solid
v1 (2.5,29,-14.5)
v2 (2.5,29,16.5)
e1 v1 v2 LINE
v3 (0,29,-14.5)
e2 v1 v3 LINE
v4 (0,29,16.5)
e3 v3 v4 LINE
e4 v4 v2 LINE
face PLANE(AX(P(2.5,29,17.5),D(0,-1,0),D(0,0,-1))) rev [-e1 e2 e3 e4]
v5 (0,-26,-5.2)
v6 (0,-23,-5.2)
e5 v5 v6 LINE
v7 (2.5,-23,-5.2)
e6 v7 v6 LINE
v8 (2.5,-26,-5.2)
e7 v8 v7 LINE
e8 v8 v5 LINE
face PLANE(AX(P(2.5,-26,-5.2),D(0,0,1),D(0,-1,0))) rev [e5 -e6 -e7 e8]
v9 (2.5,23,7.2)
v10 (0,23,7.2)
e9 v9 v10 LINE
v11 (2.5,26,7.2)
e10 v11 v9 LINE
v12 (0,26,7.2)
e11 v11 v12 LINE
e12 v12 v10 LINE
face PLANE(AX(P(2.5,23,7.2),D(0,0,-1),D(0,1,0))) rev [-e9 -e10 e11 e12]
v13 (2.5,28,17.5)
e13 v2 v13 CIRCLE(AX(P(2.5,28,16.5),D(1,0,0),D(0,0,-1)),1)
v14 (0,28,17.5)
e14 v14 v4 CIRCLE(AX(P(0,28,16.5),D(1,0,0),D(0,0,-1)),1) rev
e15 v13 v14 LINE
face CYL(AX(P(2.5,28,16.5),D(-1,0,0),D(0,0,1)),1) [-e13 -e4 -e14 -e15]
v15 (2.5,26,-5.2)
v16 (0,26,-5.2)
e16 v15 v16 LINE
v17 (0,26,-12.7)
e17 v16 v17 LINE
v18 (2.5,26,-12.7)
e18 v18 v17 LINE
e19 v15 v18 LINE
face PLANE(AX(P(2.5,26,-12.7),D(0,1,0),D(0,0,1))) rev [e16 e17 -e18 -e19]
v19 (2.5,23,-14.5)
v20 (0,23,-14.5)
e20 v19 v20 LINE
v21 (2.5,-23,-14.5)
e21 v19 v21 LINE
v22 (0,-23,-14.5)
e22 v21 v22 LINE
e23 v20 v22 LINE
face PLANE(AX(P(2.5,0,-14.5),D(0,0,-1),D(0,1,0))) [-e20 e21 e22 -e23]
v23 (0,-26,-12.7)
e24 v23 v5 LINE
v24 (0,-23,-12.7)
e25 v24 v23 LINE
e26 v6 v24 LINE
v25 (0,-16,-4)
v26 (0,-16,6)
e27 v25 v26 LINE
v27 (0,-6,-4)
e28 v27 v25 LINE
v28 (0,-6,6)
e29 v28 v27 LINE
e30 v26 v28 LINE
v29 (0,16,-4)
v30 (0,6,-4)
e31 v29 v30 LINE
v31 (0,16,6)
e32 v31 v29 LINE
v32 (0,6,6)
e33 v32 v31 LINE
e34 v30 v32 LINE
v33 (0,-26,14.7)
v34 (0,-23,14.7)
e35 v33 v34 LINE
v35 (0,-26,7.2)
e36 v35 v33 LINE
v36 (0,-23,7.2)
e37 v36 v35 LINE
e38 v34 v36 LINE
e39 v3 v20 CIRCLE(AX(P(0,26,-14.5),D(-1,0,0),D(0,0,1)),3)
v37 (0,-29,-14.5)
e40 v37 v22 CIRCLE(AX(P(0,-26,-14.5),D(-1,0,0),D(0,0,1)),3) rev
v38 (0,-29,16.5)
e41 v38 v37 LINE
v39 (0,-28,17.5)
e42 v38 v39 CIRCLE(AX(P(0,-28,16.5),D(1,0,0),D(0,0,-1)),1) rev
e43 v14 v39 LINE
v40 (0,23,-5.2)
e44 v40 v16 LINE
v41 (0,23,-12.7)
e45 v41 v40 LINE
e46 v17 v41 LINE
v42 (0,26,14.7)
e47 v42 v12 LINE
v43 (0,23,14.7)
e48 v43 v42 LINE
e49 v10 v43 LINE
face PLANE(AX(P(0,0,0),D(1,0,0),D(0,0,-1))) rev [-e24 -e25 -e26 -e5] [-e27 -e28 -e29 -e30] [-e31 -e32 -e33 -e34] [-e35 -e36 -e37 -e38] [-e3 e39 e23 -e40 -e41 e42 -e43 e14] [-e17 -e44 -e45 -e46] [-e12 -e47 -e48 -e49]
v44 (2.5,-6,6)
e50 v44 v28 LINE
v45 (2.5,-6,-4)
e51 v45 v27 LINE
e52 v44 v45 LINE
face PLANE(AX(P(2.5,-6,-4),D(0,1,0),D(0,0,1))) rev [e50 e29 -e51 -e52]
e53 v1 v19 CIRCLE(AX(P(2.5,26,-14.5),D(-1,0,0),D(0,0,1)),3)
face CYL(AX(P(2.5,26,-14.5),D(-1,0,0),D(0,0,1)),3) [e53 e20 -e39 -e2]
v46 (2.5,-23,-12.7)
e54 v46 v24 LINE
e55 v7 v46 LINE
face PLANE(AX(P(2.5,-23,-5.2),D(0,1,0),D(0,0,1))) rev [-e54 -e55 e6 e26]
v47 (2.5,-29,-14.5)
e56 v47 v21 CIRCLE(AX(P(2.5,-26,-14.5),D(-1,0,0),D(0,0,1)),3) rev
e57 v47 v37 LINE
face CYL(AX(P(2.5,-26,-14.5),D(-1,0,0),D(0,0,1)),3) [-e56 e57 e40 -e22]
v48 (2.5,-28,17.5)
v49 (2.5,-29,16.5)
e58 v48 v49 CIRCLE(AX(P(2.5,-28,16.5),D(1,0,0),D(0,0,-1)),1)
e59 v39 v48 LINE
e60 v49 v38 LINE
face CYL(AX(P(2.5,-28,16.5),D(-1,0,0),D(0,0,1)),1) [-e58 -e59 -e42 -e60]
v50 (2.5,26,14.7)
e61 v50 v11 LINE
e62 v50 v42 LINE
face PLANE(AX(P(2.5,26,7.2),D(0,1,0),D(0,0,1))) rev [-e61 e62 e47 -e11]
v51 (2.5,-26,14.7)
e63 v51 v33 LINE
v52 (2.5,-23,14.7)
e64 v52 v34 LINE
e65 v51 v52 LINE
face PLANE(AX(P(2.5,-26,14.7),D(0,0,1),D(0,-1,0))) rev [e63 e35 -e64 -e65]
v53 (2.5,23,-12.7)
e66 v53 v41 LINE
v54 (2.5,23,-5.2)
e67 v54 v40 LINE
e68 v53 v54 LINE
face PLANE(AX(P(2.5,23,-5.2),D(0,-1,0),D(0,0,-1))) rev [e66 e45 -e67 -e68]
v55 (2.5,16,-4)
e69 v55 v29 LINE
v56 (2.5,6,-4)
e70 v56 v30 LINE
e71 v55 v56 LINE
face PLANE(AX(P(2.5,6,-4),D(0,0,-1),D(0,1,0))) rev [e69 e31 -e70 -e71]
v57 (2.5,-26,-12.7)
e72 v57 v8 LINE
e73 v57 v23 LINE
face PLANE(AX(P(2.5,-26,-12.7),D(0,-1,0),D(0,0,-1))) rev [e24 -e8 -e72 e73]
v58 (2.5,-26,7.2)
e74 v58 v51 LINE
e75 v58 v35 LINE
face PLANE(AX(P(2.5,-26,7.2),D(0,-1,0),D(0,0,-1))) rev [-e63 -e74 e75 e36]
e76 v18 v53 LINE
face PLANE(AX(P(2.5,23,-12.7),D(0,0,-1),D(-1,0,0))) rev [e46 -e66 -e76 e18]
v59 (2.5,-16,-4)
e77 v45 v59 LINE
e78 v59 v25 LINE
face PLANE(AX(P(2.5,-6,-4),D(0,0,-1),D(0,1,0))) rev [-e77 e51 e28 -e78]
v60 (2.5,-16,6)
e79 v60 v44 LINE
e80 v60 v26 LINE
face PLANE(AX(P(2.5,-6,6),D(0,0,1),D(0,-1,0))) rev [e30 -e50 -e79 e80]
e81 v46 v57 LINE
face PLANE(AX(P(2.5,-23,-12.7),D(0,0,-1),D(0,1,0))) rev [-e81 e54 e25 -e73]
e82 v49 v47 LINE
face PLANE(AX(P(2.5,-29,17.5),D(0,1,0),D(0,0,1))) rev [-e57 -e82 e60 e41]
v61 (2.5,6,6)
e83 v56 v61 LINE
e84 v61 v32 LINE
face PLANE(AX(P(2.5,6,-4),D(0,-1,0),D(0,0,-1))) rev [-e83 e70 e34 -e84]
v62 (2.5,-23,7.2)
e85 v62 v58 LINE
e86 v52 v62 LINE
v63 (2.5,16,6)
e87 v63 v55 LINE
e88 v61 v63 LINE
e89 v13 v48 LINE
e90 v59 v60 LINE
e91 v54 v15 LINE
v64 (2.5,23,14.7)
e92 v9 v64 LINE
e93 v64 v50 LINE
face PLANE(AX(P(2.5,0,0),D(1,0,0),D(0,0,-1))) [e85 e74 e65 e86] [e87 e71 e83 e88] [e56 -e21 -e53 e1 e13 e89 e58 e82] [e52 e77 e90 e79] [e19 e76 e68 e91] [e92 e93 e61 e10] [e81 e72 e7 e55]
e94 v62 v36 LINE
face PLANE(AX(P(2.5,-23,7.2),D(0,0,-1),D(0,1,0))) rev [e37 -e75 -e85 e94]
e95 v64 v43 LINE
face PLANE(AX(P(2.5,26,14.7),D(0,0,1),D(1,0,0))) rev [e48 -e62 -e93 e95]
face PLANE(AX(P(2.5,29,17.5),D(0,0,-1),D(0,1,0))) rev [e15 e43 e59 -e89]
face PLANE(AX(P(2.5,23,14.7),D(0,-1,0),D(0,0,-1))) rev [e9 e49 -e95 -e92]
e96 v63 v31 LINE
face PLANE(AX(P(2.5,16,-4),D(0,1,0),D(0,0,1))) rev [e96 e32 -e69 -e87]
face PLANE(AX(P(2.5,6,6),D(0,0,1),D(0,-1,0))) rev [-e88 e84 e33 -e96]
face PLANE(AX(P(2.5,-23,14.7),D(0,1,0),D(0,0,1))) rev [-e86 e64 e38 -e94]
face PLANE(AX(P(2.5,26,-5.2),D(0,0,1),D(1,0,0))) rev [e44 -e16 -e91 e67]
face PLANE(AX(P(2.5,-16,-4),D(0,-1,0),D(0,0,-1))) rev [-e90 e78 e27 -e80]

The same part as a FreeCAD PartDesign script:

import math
import FreeCAD as App
import Part
import Sketcher
from FreeCAD import Vector


def edges_at(feature, points):
    """Names of the edges that pass closest to the given points."""
    edges = feature.Shape.Edges
    near = lambda p: min(range(len(edges)), key=lambda i: edges[i].distToShape(Part.Vertex(*p))[0])
    return sorted({f"Edge{near(p) + 1}" for p in points})

doc = App.newDocument("Part")
body = doc.addObject("PartDesign::Body", "Body")

sketch1 = body.newObject("Sketcher::SketchObject", "Sketch")
sketch1.AttachmentSupport = (doc.getObject("YZ_Plane"), [""])
sketch1.MapMode = "FlatFace"
sketch1.addGeometry(Part.LineSegment(Vector(29, 18, 0), Vector(-29, 18, 0)), False)
sketch1.addGeometry(Part.LineSegment(Vector(-29, 18, 0), Vector(-29, -18, 0)), False)
sketch1.addGeometry(Part.LineSegment(Vector(-29, -18, 0), Vector(29, -18, 0)), False)
sketch1.addGeometry(Part.LineSegment(Vector(29, -18, 0), Vector(29, 18, 0)), False)
sketch1.addConstraint(Sketcher.Constraint("Coincident", 0, 2, 1, 1))
sketch1.addConstraint(Sketcher.Constraint("Coincident", 1, 2, 2, 1))
sketch1.addConstraint(Sketcher.Constraint("Coincident", 2, 2, 3, 1))
sketch1.addConstraint(Sketcher.Constraint("Coincident", 3, 2, 0, 1))
sketch1.addConstraint(Sketcher.Constraint("Horizontal", 0))
sketch1.addConstraint(Sketcher.Constraint("Vertical", 1))
sketch1.addConstraint(Sketcher.Constraint("Horizontal", 2))
sketch1.addConstraint(Sketcher.Constraint("Vertical", 3))
sketch1.addConstraint(Sketcher.Constraint("Symmetric", 0, 2, 2, 2, -1, 1))
sketch1.addConstraint(Sketcher.Constraint("DistanceX", 0, 2, 0, 1, 58.0))
sketch1.addConstraint(Sketcher.Constraint("DistanceY", 1, 2, 1, 1, 35.0))
pad1 = body.newObject("PartDesign::Pad", "Pad")
pad1.Profile = sketch1
pad1.Length = 2.5

sketch2 = body.newObject("Sketcher::SketchObject", "Sketch001")
sketch2.AttachmentSupport = (doc.getObject("YZ_Plane"), [""])
sketch2.MapMode = "FlatFace"
sketch2.addGeometry(Part.LineSegment(Vector(26, -12.7, 0), Vector(23, -12.7, 0)), False)
sketch2.addGeometry(Part.LineSegment(Vector(23, -12.7, 0), Vector(23, -5.2, 0)), False)
sketch2.addGeometry(Part.LineSegment(Vector(23, -5.2, 0), Vector(26, -5.2, 0)), False)
sketch2.addGeometry(Part.LineSegment(Vector(26, -5.2, 0), Vector(26, -12.7, 0)), False)
sketch2.addGeometry(Part.LineSegment(Vector(26, 7.2, 0), Vector(23, 7.2, 0)), False)
sketch2.addGeometry(Part.LineSegment(Vector(23, 7.2, 0), Vector(23, 14.7, 0)), False)
sketch2.addGeometry(Part.LineSegment(Vector(23, 14.7, 0), Vector(26, 14.7, 0)), False)
sketch2.addGeometry(Part.LineSegment(Vector(26, 14.7, 0), Vector(26, 7.2, 0)), False)
sketch2.addGeometry(Part.LineSegment(Vector(-23, -12.7, 0), Vector(-26, -12.7, 0)), False)
sketch2.addGeometry(Part.LineSegment(Vector(-26, -12.7, 0), Vector(-26, -5.2, 0)), False)
sketch2.addGeometry(Part.LineSegment(Vector(-26, -5.2, 0), Vector(-23, -5.2, 0)), False)
sketch2.addGeometry(Part.LineSegment(Vector(-23, -5.2, 0), Vector(-23, -12.7, 0)), False)
sketch2.addGeometry(Part.LineSegment(Vector(-23, 7.2, 0), Vector(-26, 7.2, 0)), False)
sketch2.addGeometry(Part.LineSegment(Vector(-26, 7.2, 0), Vector(-26, 14.7, 0)), False)
sketch2.addGeometry(Part.LineSegment(Vector(-26, 14.7, 0), Vector(-23, 14.7, 0)), False)
sketch2.addGeometry(Part.LineSegment(Vector(-23, 14.7, 0), Vector(-23, 7.2, 0)), False)
sketch2.addConstraint(Sketcher.Constraint("Coincident", 0, 2, 1, 1))
sketch2.addConstraint(Sketcher.Constraint("Coincident", 1, 2, 2, 1))
sketch2.addConstraint(Sketcher.Constraint("Coincident", 2, 2, 3, 1))
sketch2.addConstraint(Sketcher.Constraint("Coincident", 3, 2, 0, 1))
sketch2.addConstraint(Sketcher.Constraint("Coincident", 4, 2, 5, 1))
sketch2.addConstraint(Sketcher.Constraint("Coincident", 5, 2, 6, 1))
sketch2.addConstraint(Sketcher.Constraint("Coincident", 6, 2, 7, 1))
sketch2.addConstraint(Sketcher.Constraint("Coincident", 7, 2, 4, 1))
sketch2.addConstraint(Sketcher.Constraint("Coincident", 8, 2, 9, 1))
sketch2.addConstraint(Sketcher.Constraint("Coincident", 9, 2, 10, 1))
sketch2.addConstraint(Sketcher.Constraint("Coincident", 10, 2, 11, 1))
sketch2.addConstraint(Sketcher.Constraint("Coincident", 11, 2, 8, 1))
sketch2.addConstraint(Sketcher.Constraint("Coincident", 12, 2, 13, 1))
sketch2.addConstraint(Sketcher.Constraint("Coincident", 13, 2, 14, 1))
sketch2.addConstraint(Sketcher.Constraint("Coincident", 14, 2, 15, 1))
sketch2.addConstraint(Sketcher.Constraint("Coincident", 15, 2, 12, 1))
sketch2.addConstraint(Sketcher.Constraint("Horizontal", 0))
sketch2.addConstraint(Sketcher.Constraint("Vertical", 1))
sketch2.addConstraint(Sketcher.Constraint("Horizontal", 2))
sketch2.addConstraint(Sketcher.Constraint("Vertical", 3))
sketch2.addConstraint(Sketcher.Constraint("Horizontal", 4))
sketch2.addConstraint(Sketcher.Constraint("Vertical", 5))
sketch2.addConstraint(Sketcher.Constraint("Horizontal", 6))
sketch2.addConstraint(Sketcher.Constraint("Vertical", 7))
sketch2.addConstraint(Sketcher.Constraint("Horizontal", 8))
sketch2.addConstraint(Sketcher.Constraint("Vertical", 9))
sketch2.addConstraint(Sketcher.Constraint("Horizontal", 10))
sketch2.addConstraint(Sketcher.Constraint("Vertical", 11))
sketch2.addConstraint(Sketcher.Constraint("Horizontal", 12))
sketch2.addConstraint(Sketcher.Constraint("Vertical", 13))
sketch2.addConstraint(Sketcher.Constraint("Horizontal", 14))
sketch2.addConstraint(Sketcher.Constraint("Vertical", 15))
sketch2.addConstraint(Sketcher.Constraint("Symmetric", 3, 2, 8, 2, -2))
sketch2.addConstraint(Sketcher.Constraint("Symmetric", 1, 2, 10, 2, -2))
sketch2.addConstraint(Sketcher.Constraint("Symmetric", 7, 2, 12, 2, -2))
sketch2.addConstraint(Sketcher.Constraint("Symmetric", 5, 2, 14, 2, -2))
sketch2.addConstraint(Sketcher.Constraint("Vertical", 1, 2, 4, 2))
sketch2.addConstraint(Sketcher.Constraint("Vertical", 3, 2, 6, 2))
sketch2.addConstraint(Sketcher.Constraint("Equal", 3, 5))
sketch2.addConstraint(Sketcher.Constraint("DistanceX", 0, 2, 0, 1, 3.0))
sketch2.addConstraint(Sketcher.Constraint("DistanceY", 1, 1, 1, 2, 7.5))
sketch2.addConstraint(Sketcher.Constraint("DistanceX", -1, 1, 0, 2, 23.0))
sketch2.addConstraint(Sketcher.Constraint("DistanceY", 0, 2, -1, 1, 12.7))
sketch2.addConstraint(Sketcher.Constraint("DistanceY", -1, 1, 4, 2, 7.2))
pocket1 = body.newObject("PartDesign::Pocket", "Pocket")
pocket1.Profile = sketch2
pocket1.Type = "ThroughAll"
pocket1.Reversed = True

sketch3 = body.newObject("Sketcher::SketchObject", "Sketch002")
sketch3.AttachmentSupport = (doc.getObject("YZ_Plane"), [""])
sketch3.MapMode = "FlatFace"
sketch3.addGeometry(Part.LineSegment(Vector(29, -17.5, 0), Vector(26, -17.5, 0)), False)
sketch3.addGeometry(Part.ArcOfCircle(Part.Circle(Vector(26, -14.5, 0), Vector(0, 0, 1), 3), math.radians(-90), math.radians(0)), False)
sketch3.addGeometry(Part.LineSegment(Vector(29, -14.5, 0), Vector(29, -17.5, 0)), False)
sketch3.addGeometry(Part.ArcOfCircle(Part.Circle(Vector(26, -14.5, 0), Vector(0, 0, 1), 3), math.radians(180), math.radians(270)), False)
sketch3.addGeometry(Part.LineSegment(Vector(26, -17.5, 0), Vector(-26, -17.5, 0)), False)
sketch3.addGeometry(Part.ArcOfCircle(Part.Circle(Vector(-26, -14.5, 0), Vector(0, 0, 1), 3), math.radians(-90), math.radians(0)), False)
sketch3.addGeometry(Part.LineSegment(Vector(-23, -14.5, 0), Vector(23, -14.5, 0)), False)
sketch3.addGeometry(Part.ArcOfCircle(Part.Circle(Vector(-26, -14.5, 0), Vector(0, 0, 1), 3), math.radians(180), math.radians(270)), False)
sketch3.addGeometry(Part.LineSegment(Vector(-26, -17.5, 0), Vector(-29, -17.5, 0)), False)
sketch3.addGeometry(Part.LineSegment(Vector(-29, -17.5, 0), Vector(-29, -14.5, 0)), False)
sketch3.addConstraint(Sketcher.Constraint("Tangent", 0, 2, 1, 1))
sketch3.addConstraint(Sketcher.Constraint("Tangent", 1, 2, 2, 1))
sketch3.addConstraint(Sketcher.Constraint("Coincident", 2, 2, 0, 1))
sketch3.addConstraint(Sketcher.Constraint("Tangent", 3, 2, 4, 1))
sketch3.addConstraint(Sketcher.Constraint("Tangent", 4, 2, 5, 1))
sketch3.addConstraint(Sketcher.Constraint("Coincident", 5, 2, 6, 1))
sketch3.addConstraint(Sketcher.Constraint("Coincident", 6, 2, 3, 1))
sketch3.addConstraint(Sketcher.Constraint("Tangent", 7, 2, 8, 1))
sketch3.addConstraint(Sketcher.Constraint("Coincident", 8, 2, 9, 1))
sketch3.addConstraint(Sketcher.Constraint("Tangent", 9, 2, 7, 1))
sketch3.addConstraint(Sketcher.Constraint("Horizontal", 0))
sketch3.addConstraint(Sketcher.Constraint("Vertical", 2))
sketch3.addConstraint(Sketcher.Constraint("Horizontal", 4))
sketch3.addConstraint(Sketcher.Constraint("Horizontal", 6))
sketch3.addConstraint(Sketcher.Constraint("Horizontal", 8))
sketch3.addConstraint(Sketcher.Constraint("Vertical", 9))
sketch3.addConstraint(Sketcher.Constraint("Coincident", 3, 3, 1, 3))
sketch3.addConstraint(Sketcher.Constraint("Coincident", 7, 3, 5, 3))
sketch3.addConstraint(Sketcher.Constraint("Equal", 1, 3))
sketch3.addConstraint(Sketcher.Constraint("Equal", 3, 5))
sketch3.addConstraint(Sketcher.Constraint("Equal", 5, 7))
sketch3.addConstraint(Sketcher.Constraint("Horizontal", 1, 2, 5, 2))
sketch3.addConstraint(Sketcher.Constraint("Radius", 1, 3.0))
sketch3.addConstraint(Sketcher.Constraint("DistanceX", 4, 2, 4, 1, 52.0))
sketch3.addConstraint(Sketcher.Constraint("DistanceX", -1, 1, 1, 3, 26.0))
sketch3.addConstraint(Sketcher.Constraint("DistanceY", 1, 3, -1, 1, 14.5))
pocket2 = body.newObject("PartDesign::Pocket", "Pocket001")
pocket2.Profile = sketch3
pocket2.Type = "ThroughAll"
pocket2.Reversed = True

sketch4 = body.newObject("Sketcher::SketchObject", "Sketch003")
sketch4.AttachmentSupport = (doc.getObject("YZ_Plane"), [""])
sketch4.MapMode = "FlatFace"
sketch4.addGeometry(Part.LineSegment(Vector(-6, -4, 0), Vector(-16, -4, 0)), False)
sketch4.addGeometry(Part.LineSegment(Vector(-16, -4, 0), Vector(-16, 6, 0)), False)
sketch4.addGeometry(Part.LineSegment(Vector(-16, 6, 0), Vector(-6, 6, 0)), False)
sketch4.addGeometry(Part.LineSegment(Vector(-6, 6, 0), Vector(-6, -4, 0)), False)
sketch4.addGeometry(Part.LineSegment(Vector(16, -4, 0), Vector(6, -4, 0)), False)
sketch4.addGeometry(Part.LineSegment(Vector(6, -4, 0), Vector(6, 6, 0)), False)
sketch4.addGeometry(Part.LineSegment(Vector(6, 6, 0), Vector(16, 6, 0)), False)
sketch4.addGeometry(Part.LineSegment(Vector(16, 6, 0), Vector(16, -4, 0)), False)
sketch4.addConstraint(Sketcher.Constraint("Coincident", 0, 2, 1, 1))
sketch4.addConstraint(Sketcher.Constraint("Coincident", 1, 2, 2, 1))
sketch4.addConstraint(Sketcher.Constraint("Coincident", 2, 2, 3, 1))
sketch4.addConstraint(Sketcher.Constraint("Coincident", 3, 2, 0, 1))
sketch4.addConstraint(Sketcher.Constraint("Coincident", 4, 2, 5, 1))
sketch4.addConstraint(Sketcher.Constraint("Coincident", 5, 2, 6, 1))
sketch4.addConstraint(Sketcher.Constraint("Coincident", 6, 2, 7, 1))
sketch4.addConstraint(Sketcher.Constraint("Coincident", 7, 2, 4, 1))
sketch4.addConstraint(Sketcher.Constraint("Horizontal", 0))
sketch4.addConstraint(Sketcher.Constraint("Vertical", 1))
sketch4.addConstraint(Sketcher.Constraint("Horizontal", 2))
sketch4.addConstraint(Sketcher.Constraint("Vertical", 3))
sketch4.addConstraint(Sketcher.Constraint("Horizontal", 4))
sketch4.addConstraint(Sketcher.Constraint("Vertical", 5))
sketch4.addConstraint(Sketcher.Constraint("Horizontal", 6))
sketch4.addConstraint(Sketcher.Constraint("Vertical", 7))
sketch4.addConstraint(Sketcher.Constraint("Symmetric", 3, 2, 4, 2, -2))
sketch4.addConstraint(Sketcher.Constraint("Symmetric", 1, 2, 6, 2, -2))
sketch4.addConstraint(Sketcher.Constraint("Equal", 6, 1))
sketch4.addConstraint(Sketcher.Constraint("DistanceX", 0, 2, 0, 1, 10.0))
sketch4.addConstraint(Sketcher.Constraint("DistanceX", 0, 2, -1, 1, 16.0))
sketch4.addConstraint(Sketcher.Constraint("DistanceY", 0, 2, -1, 1, 4.0))
pocket3 = body.newObject("PartDesign::Pocket", "Pocket002")
pocket3.Profile = sketch4
pocket3.Type = "ThroughAll"
pocket3.Reversed = True
doc.recompute()

fillet = body.newObject("PartDesign::Fillet", "Fillet")
fillet.Base = (pocket3, edges_at(pocket3, [(1.25, -29, 17.5), (1.25, 29, 17.5)]))
fillet.Radius = 1

doc.recompute()
